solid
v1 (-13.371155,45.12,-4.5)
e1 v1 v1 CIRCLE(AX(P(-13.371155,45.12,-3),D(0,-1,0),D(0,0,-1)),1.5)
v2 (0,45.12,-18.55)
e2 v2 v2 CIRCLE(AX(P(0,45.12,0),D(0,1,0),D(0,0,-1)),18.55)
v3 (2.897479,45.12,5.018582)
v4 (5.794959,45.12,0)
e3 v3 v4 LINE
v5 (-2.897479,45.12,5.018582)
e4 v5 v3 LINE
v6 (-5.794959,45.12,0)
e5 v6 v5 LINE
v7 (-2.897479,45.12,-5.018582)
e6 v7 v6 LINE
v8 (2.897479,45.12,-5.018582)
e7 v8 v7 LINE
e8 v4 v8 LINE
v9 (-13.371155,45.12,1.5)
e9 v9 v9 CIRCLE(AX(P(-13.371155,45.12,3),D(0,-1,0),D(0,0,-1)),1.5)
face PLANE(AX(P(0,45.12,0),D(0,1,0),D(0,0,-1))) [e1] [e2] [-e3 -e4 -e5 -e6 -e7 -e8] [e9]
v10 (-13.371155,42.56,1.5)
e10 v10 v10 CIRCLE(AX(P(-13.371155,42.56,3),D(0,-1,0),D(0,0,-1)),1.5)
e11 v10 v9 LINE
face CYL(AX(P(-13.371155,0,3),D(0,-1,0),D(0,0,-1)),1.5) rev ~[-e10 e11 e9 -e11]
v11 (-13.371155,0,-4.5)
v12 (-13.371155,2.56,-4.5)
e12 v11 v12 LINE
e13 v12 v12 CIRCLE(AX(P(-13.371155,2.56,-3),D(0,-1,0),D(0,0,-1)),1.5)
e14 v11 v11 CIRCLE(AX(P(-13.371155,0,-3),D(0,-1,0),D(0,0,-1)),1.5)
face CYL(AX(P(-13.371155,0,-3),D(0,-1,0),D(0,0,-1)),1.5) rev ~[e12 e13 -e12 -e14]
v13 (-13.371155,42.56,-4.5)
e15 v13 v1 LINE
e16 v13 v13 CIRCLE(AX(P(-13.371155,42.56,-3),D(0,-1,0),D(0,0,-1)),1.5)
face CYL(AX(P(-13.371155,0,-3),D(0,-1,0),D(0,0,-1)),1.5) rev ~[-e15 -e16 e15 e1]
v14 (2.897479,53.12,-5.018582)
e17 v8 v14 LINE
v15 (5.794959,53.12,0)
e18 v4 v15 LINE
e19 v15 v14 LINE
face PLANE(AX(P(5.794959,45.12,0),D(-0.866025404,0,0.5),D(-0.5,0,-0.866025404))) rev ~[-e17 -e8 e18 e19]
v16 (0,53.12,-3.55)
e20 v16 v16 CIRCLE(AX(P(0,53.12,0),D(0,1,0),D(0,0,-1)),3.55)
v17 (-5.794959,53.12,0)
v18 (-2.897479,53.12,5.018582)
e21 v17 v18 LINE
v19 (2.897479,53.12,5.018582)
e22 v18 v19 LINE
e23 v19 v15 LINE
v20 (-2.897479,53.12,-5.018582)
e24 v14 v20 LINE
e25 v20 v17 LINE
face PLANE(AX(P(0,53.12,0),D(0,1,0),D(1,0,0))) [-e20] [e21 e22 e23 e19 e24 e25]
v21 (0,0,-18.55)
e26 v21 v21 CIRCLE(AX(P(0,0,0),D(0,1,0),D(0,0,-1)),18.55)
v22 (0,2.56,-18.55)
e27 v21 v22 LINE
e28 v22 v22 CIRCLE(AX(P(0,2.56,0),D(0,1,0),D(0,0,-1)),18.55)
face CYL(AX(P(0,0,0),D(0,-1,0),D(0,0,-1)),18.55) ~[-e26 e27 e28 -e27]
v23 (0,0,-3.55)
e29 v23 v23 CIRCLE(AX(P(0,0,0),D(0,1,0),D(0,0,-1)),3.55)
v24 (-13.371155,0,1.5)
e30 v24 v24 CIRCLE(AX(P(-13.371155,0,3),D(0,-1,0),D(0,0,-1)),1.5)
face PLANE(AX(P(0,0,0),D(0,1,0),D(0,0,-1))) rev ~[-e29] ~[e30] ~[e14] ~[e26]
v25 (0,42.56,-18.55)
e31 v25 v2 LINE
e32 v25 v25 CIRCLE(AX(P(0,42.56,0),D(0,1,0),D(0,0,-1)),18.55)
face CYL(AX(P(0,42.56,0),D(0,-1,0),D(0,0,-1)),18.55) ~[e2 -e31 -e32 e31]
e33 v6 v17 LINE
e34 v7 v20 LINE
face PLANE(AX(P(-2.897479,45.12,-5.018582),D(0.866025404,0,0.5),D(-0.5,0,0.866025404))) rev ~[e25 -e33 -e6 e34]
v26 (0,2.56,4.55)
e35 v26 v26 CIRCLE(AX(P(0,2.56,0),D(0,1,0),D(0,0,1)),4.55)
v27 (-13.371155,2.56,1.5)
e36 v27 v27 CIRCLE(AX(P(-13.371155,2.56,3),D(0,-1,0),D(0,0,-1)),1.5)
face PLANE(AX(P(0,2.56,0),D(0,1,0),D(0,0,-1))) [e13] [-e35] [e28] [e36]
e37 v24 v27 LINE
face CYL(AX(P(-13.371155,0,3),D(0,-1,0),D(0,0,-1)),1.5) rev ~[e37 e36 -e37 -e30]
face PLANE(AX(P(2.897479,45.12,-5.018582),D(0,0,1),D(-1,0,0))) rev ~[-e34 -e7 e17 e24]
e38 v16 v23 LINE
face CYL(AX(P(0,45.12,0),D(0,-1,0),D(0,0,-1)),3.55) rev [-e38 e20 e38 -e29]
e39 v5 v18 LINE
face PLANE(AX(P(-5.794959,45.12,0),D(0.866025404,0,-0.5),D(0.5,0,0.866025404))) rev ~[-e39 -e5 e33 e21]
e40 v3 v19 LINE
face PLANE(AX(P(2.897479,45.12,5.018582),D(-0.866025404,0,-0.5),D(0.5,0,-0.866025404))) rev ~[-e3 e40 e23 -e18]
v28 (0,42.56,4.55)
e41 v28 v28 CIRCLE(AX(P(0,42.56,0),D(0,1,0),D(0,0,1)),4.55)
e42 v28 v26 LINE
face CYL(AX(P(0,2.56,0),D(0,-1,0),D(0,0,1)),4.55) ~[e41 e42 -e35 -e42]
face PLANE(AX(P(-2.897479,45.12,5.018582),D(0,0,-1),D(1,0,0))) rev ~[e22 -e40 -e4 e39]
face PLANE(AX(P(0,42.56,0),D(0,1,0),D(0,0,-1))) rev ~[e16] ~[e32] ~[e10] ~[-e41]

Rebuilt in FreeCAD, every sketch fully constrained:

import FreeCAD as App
import Part
import Sketcher
Q = App.Units.Quantity


def add_polygon(sketch, points):
    """Adds a closed chain of lines whose ends are joined by coincident constraints."""
    first, n = sketch.GeometryCount, len(points)
    for a, b in zip(points, points[1:] + points[:1]):
        sketch.addGeometry(Part.LineSegment(App.Vector(*a, 0), App.Vector(*b, 0)), False)
    for i in range(n):
        sketch.addConstraint(Sketcher.Constraint("Coincident", first + i, 2, first + (i + 1) % n, 1))

doc = App.newDocument("Part")
params = doc.addObject("Spreadsheet::Sheet", "Params")
for row, (alias, value) in enumerate([
    ("sketch1_diameter", "37.1 mm"),
    ("sketch1_diameter2", "7.1 mm"),
    ("pad1_length", "2.56 mm"),
    ("sketch2_diameter", "9.1 mm"),
    ("sketch2_diameter2", "7.1 mm"),
    ("pad2_length", "20 mm"),
    ("sketch3_diameter", "37.1 mm"),
    ("sketch3_diameter2", "7.1 mm"),
    ("pad3_length", "2.56 mm"),
    ("sketch4_diameter", "7.1 mm"),
    ("pad4_length", "8 mm"),
    ("sketch5_diameter", "3 mm"),
], start=1):
    params.set(f"A{row}", alias)
    params.set(f"B{row}", "=" + value)
    params.setAlias(f"B{row}", alias)

body = doc.addObject("PartDesign::Body", "Body")

# Sketch on XZ plane
sketch1 = body.newObject("Sketcher::SketchObject", "Sketch")
sketch1.AttachmentSupport = (doc.getObject("XZ_Plane"), [""])
sketch1.MapMode = "FlatFace"
sketch1.addGeometry(Part.Circle(App.Vector(0, 0, 0), App.Vector(0, 0, 1), 18.6), False)
sketch1.addGeometry(Part.Circle(App.Vector(0, 0, 0), App.Vector(0, 0, 1), 3.5), False)
sketch1.addConstraint(Sketcher.Constraint("Coincident", 0, 3, -1, 1))
sketch1.addConstraint(Sketcher.Constraint("Coincident", 1, 3, -1, 1))
sketch1.addConstraint(Sketcher.Constraint("Diameter", 0, Q("37.1 mm")))
sketch1.addConstraint(Sketcher.Constraint("Diameter", 1, Q("7.1 mm")))
sketch1.setExpression("Constraints[2]", "Params.sketch1_diameter")
sketch1.setExpression("Constraints[3]", "Params.sketch1_diameter2")
pad1 = body.newObject("PartDesign::Pad", "Pad")
pad1.Profile = sketch1
pad1.setExpression("Length", "Params.pad1_length")
pad1.Reversed = True

# Sketch on XZ plane
sketch2 = body.newObject("Sketcher::SketchObject", "Sketch001")
sketch2.AttachmentSupport = (doc.getObject("XZ_Plane"), [""])
sketch2.MapMode = "FlatFace"
sketch2.AttachmentOffset = App.Placement(App.Vector(0, 0, -2.56), App.Rotation())
sketch2.addGeometry(Part.Circle(App.Vector(0, 0, 0), App.Vector(0, 0, 1), 4.5), False)
sketch2.addGeometry(Part.Circle(App.Vector(0, 0, 0), App.Vector(0, 0, 1), 3.5), False)
sketch2.addConstraint(Sketcher.Constraint("Coincident", 0, 3, -1, 1))
sketch2.addConstraint(Sketcher.Constraint("Coincident", 1, 3, -1, 1))
sketch2.addConstraint(Sketcher.Constraint("Diameter", 0, Q("9.1 mm")))
sketch2.addConstraint(Sketcher.Constraint("Diameter", 1, Q("7.1 mm")))
sketch2.setExpression("Constraints[2]", "Params.sketch2_diameter")
sketch2.setExpression("Constraints[3]", "Params.sketch2_diameter2")
pad2 = body.newObject("PartDesign::Pad", "Pad001")
pad2.Profile = sketch2
pad2.setExpression("Length", "Params.pad2_length")
pad2.Reversed = True
doc.recompute()

datumplane = body.newObject("PartDesign::Plane", "DatumPlane")
datumplane.AttachmentSupport = (doc.getObject("XZ_Plane"), [""])
datumplane.MapMode = "FlatFace"
datumplane.AttachmentOffset = App.Placement(App.Vector(0, 0, -22.56), App.Rotation())
mirrored = body.newObject("PartDesign::Mirrored", "Mirrored")
mirrored.Originals = [pad2]
mirrored.MirrorPlane = (datumplane, [""])
body.Tip = mirrored

# Sketch on XZ plane
sketch3 = body.newObject("Sketcher::SketchObject", "Sketch002")
sketch3.AttachmentSupport = (doc.getObject("XZ_Plane"), [""])
sketch3.MapMode = "FlatFace"
sketch3.AttachmentOffset = App.Placement(App.Vector(0, 0, -42.56), App.Rotation())
sketch3.addGeometry(Part.Circle(App.Vector(0, 0, 0), App.Vector(0, 0, 1), 18.6), False)
sketch3.addGeometry(Part.Circle(App.Vector(0, 0, 0), App.Vector(0, 0, 1), 3.5), False)
sketch3.addConstraint(Sketcher.Constraint("Coincident", 0, 3, -1, 1))
sketch3.addConstraint(Sketcher.Constraint("Coincident", 1, 3, -1, 1))
sketch3.addConstraint(Sketcher.Constraint("Diameter", 0, Q("37.1 mm")))
sketch3.addConstraint(Sketcher.Constraint("Diameter", 1, Q("7.1 mm")))
sketch3.setExpression("Constraints[2]", "Params.sketch3_diameter")
sketch3.setExpression("Constraints[3]", "Params.sketch3_diameter2")
pad3 = body.newObject("PartDesign::Pad", "Pad002")
pad3.Profile = sketch3
pad3.setExpression("Length", "Params.pad3_length")
pad3.Reversed = True

# Sketch on XZ plane
sketch4 = body.newObject("Sketcher::SketchObject", "Sketch003")
sketch4.AttachmentSupport = (doc.getObject("XZ_Plane"), [""])
sketch4.MapMode = "FlatFace"
sketch4.AttachmentOffset = App.Placement(App.Vector(0, 0, -45.12), App.Rotation())
add_polygon(sketch4, [(-5.8, 0), (-2.9, 5), (2.9, 5), (5.8, 0), (2.9, -5), (-2.9, -5)])  # lines 0-5
sketch4.addGeometry(Part.Circle(App.Vector(0, 0, 0), App.Vector(0, 0, 1), 3.5), False)  # 6
sketch4.addConstraint(Sketcher.Constraint("Horizontal", 1))
sketch4.addConstraint(Sketcher.Constraint("Horizontal", 4))
sketch4.addConstraint(Sketcher.Constraint("Coincident", 6, 3, -1, 1))
sketch4.addConstraint(Sketcher.Constraint("Symmetric", 0, 2, 3, 2, -1, 1))
sketch4.addConstraint(Sketcher.Constraint("Symmetric", 2, 2, 5, 2, -1, 1))
sketch4.addConstraint(Sketcher.Constraint("PointOnObject", 2, 2, -1))
sketch4.addConstraint(Sketcher.Constraint("Parallel", 2, 5))
sketch4.addConstraint(Sketcher.Constraint("Vertical", 1, 2, 3, 2))
sketch4.addConstraint(Sketcher.Constraint("Diameter", 6, Q("7.1 mm")))
sketch4.addConstraint(Sketcher.Constraint("Angle", 0, Q("60 deg")))
sketch4.addConstraint(Sketcher.Constraint("DistanceX", 1, 1, 1, 2, Q("5.794959 mm")))
sketch4.addConstraint(Sketcher.Constraint("Distance", 0, Q("5.794959 mm")))
sketch4.setExpression("Constraints[14]", "Params.sketch4_diameter")
pad4 = body.newObject("PartDesign::Pad", "Pad003")
pad4.Profile = sketch4
pad4.setExpression("Length", "Params.pad4_length")
pad4.Reversed = True

# Sketch on XZ plane
sketch5 = body.newObject("Sketcher::SketchObject", "Sketch004")
sketch5.AttachmentSupport = (doc.getObject("XZ_Plane"), [""])
sketch5.MapMode = "FlatFace"
sketch5.addGeometry(Part.Circle(App.Vector(-13.4, -3, 0), App.Vector(0, 0, 1), 1.5), False)
sketch5.addGeometry(Part.Circle(App.Vector(-13.4, 3, 0), App.Vector(0, 0, 1), 1.5), False)
sketch5.addConstraint(Sketcher.Constraint("Equal", 0, 1))
sketch5.addConstraint(Sketcher.Constraint("Symmetric", 0, 3, 1, 3, -1))
sketch5.addConstraint(Sketcher.Constraint("Diameter", 0, Q("3 mm")))
sketch5.addConstraint(Sketcher.Constraint("DistanceY", 0, 3, -1, 1, Q("3 mm")))
sketch5.addConstraint(Sketcher.Constraint("DistanceX", 0, 3, -1, 1, Q("13.371155 mm")))
sketch5.setExpression("Constraints[2]", "Params.sketch5_diameter")
pocket1 = body.newObject("PartDesign::Pocket", "Pocket")
pocket1.Profile = sketch5
pocket1.Type = "ThroughAll"
pocket1.Midplane = True

doc.recompute()
